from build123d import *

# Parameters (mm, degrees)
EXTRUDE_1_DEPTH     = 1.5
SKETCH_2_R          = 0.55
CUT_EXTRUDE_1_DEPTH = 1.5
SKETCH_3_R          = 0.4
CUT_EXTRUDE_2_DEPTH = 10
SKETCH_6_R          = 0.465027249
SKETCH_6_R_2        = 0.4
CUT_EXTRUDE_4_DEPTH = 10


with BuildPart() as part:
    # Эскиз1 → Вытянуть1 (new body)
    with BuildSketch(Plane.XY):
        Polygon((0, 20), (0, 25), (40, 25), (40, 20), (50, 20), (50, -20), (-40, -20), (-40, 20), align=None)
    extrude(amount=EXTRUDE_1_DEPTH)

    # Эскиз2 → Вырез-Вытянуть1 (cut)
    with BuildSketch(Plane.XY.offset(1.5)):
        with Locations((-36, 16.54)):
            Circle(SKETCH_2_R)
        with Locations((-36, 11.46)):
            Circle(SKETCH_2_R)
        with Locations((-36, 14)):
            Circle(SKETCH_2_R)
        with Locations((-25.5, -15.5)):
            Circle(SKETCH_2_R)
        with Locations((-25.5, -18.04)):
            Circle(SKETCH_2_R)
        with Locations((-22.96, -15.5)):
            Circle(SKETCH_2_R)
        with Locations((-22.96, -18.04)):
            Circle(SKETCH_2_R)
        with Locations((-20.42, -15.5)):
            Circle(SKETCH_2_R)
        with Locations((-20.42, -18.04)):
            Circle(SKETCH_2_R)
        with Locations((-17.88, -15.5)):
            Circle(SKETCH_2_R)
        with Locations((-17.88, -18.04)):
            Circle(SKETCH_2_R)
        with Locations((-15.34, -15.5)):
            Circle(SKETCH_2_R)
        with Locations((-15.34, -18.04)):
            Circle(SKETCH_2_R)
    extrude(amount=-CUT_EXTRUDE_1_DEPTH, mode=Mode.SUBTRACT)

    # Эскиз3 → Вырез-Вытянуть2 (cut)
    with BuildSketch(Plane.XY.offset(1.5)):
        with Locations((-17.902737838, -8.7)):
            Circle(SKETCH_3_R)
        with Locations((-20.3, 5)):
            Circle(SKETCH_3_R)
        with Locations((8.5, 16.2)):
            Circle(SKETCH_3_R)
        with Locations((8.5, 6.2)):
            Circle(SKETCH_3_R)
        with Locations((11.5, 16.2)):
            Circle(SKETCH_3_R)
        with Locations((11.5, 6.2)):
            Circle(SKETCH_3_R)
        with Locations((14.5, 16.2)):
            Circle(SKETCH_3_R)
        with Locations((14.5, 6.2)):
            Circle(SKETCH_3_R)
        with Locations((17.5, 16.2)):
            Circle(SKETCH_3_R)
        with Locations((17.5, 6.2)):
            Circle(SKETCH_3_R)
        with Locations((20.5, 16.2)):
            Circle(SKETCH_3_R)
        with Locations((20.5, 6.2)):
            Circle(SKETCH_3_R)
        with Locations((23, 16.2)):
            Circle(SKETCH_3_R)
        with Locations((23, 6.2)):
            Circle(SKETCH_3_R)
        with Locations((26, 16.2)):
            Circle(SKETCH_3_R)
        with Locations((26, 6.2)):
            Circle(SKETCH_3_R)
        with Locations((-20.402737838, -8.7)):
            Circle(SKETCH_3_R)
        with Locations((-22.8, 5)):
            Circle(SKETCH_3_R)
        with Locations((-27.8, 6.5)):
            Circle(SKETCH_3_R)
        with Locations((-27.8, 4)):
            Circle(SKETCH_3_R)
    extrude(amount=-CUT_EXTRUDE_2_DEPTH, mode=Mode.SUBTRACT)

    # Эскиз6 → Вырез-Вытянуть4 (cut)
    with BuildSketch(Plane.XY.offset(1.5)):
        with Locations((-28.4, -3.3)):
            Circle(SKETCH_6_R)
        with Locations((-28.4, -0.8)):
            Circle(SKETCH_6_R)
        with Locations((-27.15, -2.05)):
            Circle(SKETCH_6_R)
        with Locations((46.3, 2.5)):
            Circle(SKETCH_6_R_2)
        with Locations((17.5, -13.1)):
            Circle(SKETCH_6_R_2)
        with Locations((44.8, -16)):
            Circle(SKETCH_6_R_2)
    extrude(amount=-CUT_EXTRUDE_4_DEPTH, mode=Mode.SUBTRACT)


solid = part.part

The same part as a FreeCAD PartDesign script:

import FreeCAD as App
import Part
import Sketcher

V = App.Vector

doc = App.newDocument("Part")
body = doc.addObject("PartDesign::Body", "Body")

# Sketch on XY plane
sketch1 = body.newObject("Sketcher::SketchObject", "Sketch")
sketch1.AttachmentSupport = (doc.getObject("XY_Plane"), [""])
sketch1.MapMode = "FlatFace"
sketch1.addGeometry(Part.LineSegment(V(0, 25, 0), V(0, 20, 0)), False)
sketch1.addGeometry(Part.LineSegment(V(0, 20, 0), V(-40, 20, 0)), False)
sketch1.addGeometry(Part.LineSegment(V(-40, 20, 0), V(-40, -20, 0)), False)
sketch1.addGeometry(Part.LineSegment(V(-40, -20, 0), V(50, -20, 0)), False)
sketch1.addGeometry(Part.LineSegment(V(50, -20, 0), V(50, 20, 0)), False)
sketch1.addGeometry(Part.LineSegment(V(50, 20, 0), V(40, 20, 0)), False)
sketch1.addGeometry(Part.LineSegment(V(40, 20, 0), V(40, 25, 0)), False)
sketch1.addGeometry(Part.LineSegment(V(40, 25, 0), V(0, 25, 0)), False)
sketch1.addConstraint(Sketcher.Constraint("Coincident", 0, 2, 1, 1))
sketch1.addConstraint(Sketcher.Constraint("Coincident", 1, 2, 2, 1))
sketch1.addConstraint(Sketcher.Constraint("Coincident", 2, 2, 3, 1))
sketch1.addConstraint(Sketcher.Constraint("Coincident", 3, 2, 4, 1))
sketch1.addConstraint(Sketcher.Constraint("Coincident", 4, 2, 5, 1))
sketch1.addConstraint(Sketcher.Constraint("Coincident", 5, 2, 6, 1))
sketch1.addConstraint(Sketcher.Constraint("Coincident", 6, 2, 7, 1))
sketch1.addConstraint(Sketcher.Constraint("Coincident", 7, 2, 0, 1))
sketch1.addConstraint(Sketcher.Constraint("Vertical", 0))
sketch1.addConstraint(Sketcher.Constraint("Horizontal", 1))
sketch1.addConstraint(Sketcher.Constraint("Vertical", 2))
sketch1.addConstraint(Sketcher.Constraint("Horizontal", 3))
sketch1.addConstraint(Sketcher.Constraint("Vertical", 4))
sketch1.addConstraint(Sketcher.Constraint("Horizontal", 5))
sketch1.addConstraint(Sketcher.Constraint("Vertical", 6))
sketch1.addConstraint(Sketcher.Constraint("Horizontal", 7))
sketch1.addConstraint(Sketcher.Constraint("Symmetric", 2, 2, 5, 2, -1, 1))
sketch1.addConstraint(Sketcher.Constraint("PointOnObject", 0, 2, -2))
sketch1.addConstraint(Sketcher.Constraint("Horizontal", 1, 2, 4, 2))
sketch1.addConstraint(Sketcher.Constraint("Equal", 7, 2))
sketch1.addConstraint(Sketcher.Constraint("DistanceX", 1, 2, 1, 1, 40.0))
sketch1.addConstraint(Sketcher.Constraint("DistanceX", 3, 1, 3, 2, 90.0))
sketch1.addConstraint(Sketcher.Constraint("DistanceY", 0, 2, 0, 1, 5.0))
pad1 = body.newObject("PartDesign::Pad", "Pad")
pad1.Profile = sketch1
pad1.Length = 1.5

# Sketch on XY plane
sketch2 = body.newObject("Sketcher::SketchObject", "Sketch001")
sketch2.AttachmentSupport = (doc.getObject("XY_Plane"), [""])
sketch2.MapMode = "FlatFace"
sketch2.AttachmentOffset = App.Placement(V(0, 0, 1.5), App.Rotation())
sketch2.addGeometry(Part.Circle(V(-36, 16.5, 0), V(0, 0, 1), 0.6), False)
sketch2.addGeometry(Part.Circle(V(-36, 11.5, 0), V(0, 0, 1), 0.6), False)
sketch2.addGeometry(Part.Circle(V(-36, 14, 0), V(0, 0, 1), 0.6), False)
sketch2.addGeometry(Part.Circle(V(-25.5, -15.5, 0), V(0, 0, 1), 0.6), False)
sketch2.addGeometry(Part.Circle(V(-25.5, -18, 0), V(0, 0, 1), 0.6), False)
sketch2.addGeometry(Part.Circle(V(-23, -15.5, 0), V(0, 0, 1), 0.6), False)
sketch2.addGeometry(Part.Circle(V(-23, -18, 0), V(0, 0, 1), 0.6), False)
sketch2.addGeometry(Part.Circle(V(-20.4, -15.5, 0), V(0, 0, 1), 0.6), False)
sketch2.addGeometry(Part.Circle(V(-20.4, -18, 0), V(0, 0, 1), 0.6), False)
sketch2.addGeometry(Part.Circle(V(-17.9, -15.5, 0), V(0, 0, 1), 0.6), False)
sketch2.addGeometry(Part.Circle(V(-17.9, -18, 0), V(0, 0, 1), 0.6), False)
sketch2.addGeometry(Part.Circle(V(-15.3, -15.5, 0), V(0, 0, 1), 0.6), False)
sketch2.addGeometry(Part.Circle(V(-15.3, -18, 0), V(0, 0, 1), 0.6), False)
sketch2.addConstraint(Sketcher.Constraint("Equal", 0, 1))
sketch2.addConstraint(Sketcher.Constraint("Equal", 1, 2))
sketch2.addConstraint(Sketcher.Constraint("Equal", 2, 3))
sketch2.addConstraint(Sketcher.Constraint("Equal", 3, 4))
sketch2.addConstraint(Sketcher.Constraint("Equal", 4, 5))
sketch2.addConstraint(Sketcher.Constraint("Equal", 5, 6))
sketch2.addConstraint(Sketcher.Constraint("Equal", 6, 7))
sketch2.addConstraint(Sketcher.Constraint("Equal", 7, 8))
sketch2.addConstraint(Sketcher.Constraint("Equal", 8, 9))
sketch2.addConstraint(Sketcher.Constraint("Equal", 9, 10))
sketch2.addConstraint(Sketcher.Constraint("Equal", 10, 11))
sketch2.addConstraint(Sketcher.Constraint("Equal", 11, 12))
sketch2.addConstraint(Sketcher.Constraint("Horizontal", 3, 3, 5, 3))
sketch2.addConstraint(Sketcher.Constraint("Horizontal", 4, 3, 6, 3))
sketch2.addConstraint(Sketcher.Constraint("Horizontal", 5, 3, 7, 3))
sketch2.addConstraint(Sketcher.Constraint("Horizontal", 6, 3, 8, 3))
sketch2.addConstraint(Sketcher.Constraint("Horizontal", 7, 3, 9, 3))
sketch2.addConstraint(Sketcher.Constraint("Horizontal", 8, 3, 10, 3))
sketch2.addConstraint(Sketcher.Constraint("Horizontal", 9, 3, 11, 3))
sketch2.addConstraint(Sketcher.Constraint("Horizontal", 10, 3, 12, 3))
sketch2.addConstraint(Sketcher.Constraint("Vertical", 0, 3, 1, 3))
sketch2.addConstraint(Sketcher.Constraint("Vertical", 1, 3, 2, 3))
sketch2.addConstraint(Sketcher.Constraint("Vertical", 3, 3, 4, 3))
sketch2.addConstraint(Sketcher.Constraint("Vertical", 5, 3, 6, 3))
sketch2.addConstraint(Sketcher.Constraint("Vertical", 7, 3, 8, 3))
sketch2.addConstraint(Sketcher.Constraint("Vertical", 9, 3, 10, 3))
sketch2.addConstraint(Sketcher.Constraint("Vertical", 11, 3, 12, 3))
sketch2.addConstraint(Sketcher.Constraint("Diameter", 0, 1.1))
sketch2.addConstraint(Sketcher.Constraint("DistanceX", 0, 3, -1, 1, 36.0))
sketch2.addConstraint(Sketcher.Constraint("DistanceY", -1, 1, 2, 3, 14.0))
sketch2.addConstraint(Sketcher.Constraint("DistanceX", 3, 3, -1, 1, 25.5))
sketch2.addConstraint(Sketcher.Constraint("DistanceY", 3, 3, -1, 1, 15.5))
sketch2.addConstraint(Sketcher.Constraint("DistanceY", 4, 3, 1, 3, 29.5))
sketch2.addConstraint(Sketcher.Constraint("DistanceY", -1, 1, 0, 3, 16.54))
sketch2.addConstraint(Sketcher.Constraint("DistanceY", -1, 1, 1, 3, 11.46))
sketch2.addConstraint(Sketcher.Constraint("DistanceX", 5, 3, -1, 1, 22.96))
sketch2.addConstraint(Sketcher.Constraint("DistanceX", 7, 3, -1, 1, 20.42))
sketch2.addConstraint(Sketcher.Constraint("DistanceX", 9, 3, -1, 1, 17.88))
sketch2.addConstraint(Sketcher.Constraint("DistanceX", 11, 3, -1, 1, 15.34))
pocket1 = body.newObject("PartDesign::Pocket", "Pocket")
pocket1.Profile = sketch2
pocket1.Length = 1.5

# Sketch on XY plane
sketch3 = body.newObject("Sketcher::SketchObject", "Sketch002")
sketch3.AttachmentSupport = (doc.getObject("XY_Plane"), [""])
sketch3.MapMode = "FlatFace"
sketch3.AttachmentOffset = App.Placement(V(0, 0, 1.5), App.Rotation())
sketch3.addGeometry(Part.Circle(V(-17.9, -8.7, 0), V(0, 0, 1), 0.4), False)
sketch3.addGeometry(Part.Circle(V(-20.3, 5, 0), V(0, 0, 1), 0.4), False)
sketch3.addGeometry(Part.Circle(V(8.5, 16.2, 0), V(0, 0, 1), 0.4), False)
sketch3.addGeometry(Part.Circle(V(8.5, 6.2, 0), V(0, 0, 1), 0.4), False)
sketch3.addGeometry(Part.Circle(V(11.5, 16.2, 0), V(0, 0, 1), 0.4), False)
sketch3.addGeometry(Part.Circle(V(11.5, 6.2, 0), V(0, 0, 1), 0.4), False)
sketch3.addGeometry(Part.Circle(V(14.5, 16.2, 0), V(0, 0, 1), 0.4), False)
sketch3.addGeometry(Part.Circle(V(14.5, 6.2, 0), V(0, 0, 1), 0.4), False)
sketch3.addGeometry(Part.Circle(V(17.5, 16.2, 0), V(0, 0, 1), 0.4), False)
sketch3.addGeometry(Part.Circle(V(17.5, 6.2, 0), V(0, 0, 1), 0.4), False)
sketch3.addGeometry(Part.Circle(V(20.5, 16.2, 0), V(0, 0, 1), 0.4), False)
sketch3.addGeometry(Part.Circle(V(20.5, 6.2, 0), V(0, 0, 1), 0.4), False)
sketch3.addGeometry(Part.Circle(V(23, 16.2, 0), V(0, 0, 1), 0.4), False)
sketch3.addGeometry(Part.Circle(V(23, 6.2, 0), V(0, 0, 1), 0.4), False)
sketch3.addGeometry(Part.Circle(V(26, 16.2, 0), V(0, 0, 1), 0.4), False)
sketch3.addGeometry(Part.Circle(V(26, 6.2, 0), V(0, 0, 1), 0.4), False)
sketch3.addGeometry(Part.Circle(V(-20.4, -8.7, 0), V(0, 0, 1), 0.4), False)
sketch3.addGeometry(Part.Circle(V(-22.8, 5, 0), V(0, 0, 1), 0.4), False)
sketch3.addGeometry(Part.Circle(V(-27.8, 6.5, 0), V(0, 0, 1), 0.4), False)
sketch3.addGeometry(Part.Circle(V(-27.8, 4, 0), V(0, 0, 1), 0.4), False)
sketch3.addConstraint(Sketcher.Constraint("Equal", 0, 1))
sketch3.addConstraint(Sketcher.Constraint("Equal", 1, 2))
sketch3.addConstraint(Sketcher.Constraint("Equal", 2, 3))
sketch3.addConstraint(Sketcher.Constraint("Equal", 3, 4))
sketch3.addConstraint(Sketcher.Constraint("Equal", 4, 5))
sketch3.addConstraint(Sketcher.Constraint("Equal", 5, 6))
sketch3.addConstraint(Sketcher.Constraint("Equal", 6, 7))
sketch3.addConstraint(Sketcher.Constraint("Equal", 7, 8))
sketch3.addConstraint(Sketcher.Constraint("Equal", 8, 9))
sketch3.addConstraint(Sketcher.Constraint("Equal", 9, 10))
sketch3.addConstraint(Sketcher.Constraint("Equal", 10, 11))
sketch3.addConstraint(Sketcher.Constraint("Equal", 11, 12))
sketch3.addConstraint(Sketcher.Constraint("Equal", 12, 13))
sketch3.addConstraint(Sketcher.Constraint("Equal", 13, 14))
sketch3.addConstraint(Sketcher.Constraint("Equal", 14, 15))
sketch3.addConstraint(Sketcher.Constraint("Equal", 15, 16))
sketch3.addConstraint(Sketcher.Constraint("Equal", 16, 17))
sketch3.addConstraint(Sketcher.Constraint("Equal", 17, 18))
sketch3.addConstraint(Sketcher.Constraint("Equal", 18, 19))
sketch3.addConstraint(Sketcher.Constraint("Horizontal", 2, 3, 4, 3))
sketch3.addConstraint(Sketcher.Constraint("Horizontal", 3, 3, 5, 3))
sketch3.addConstraint(Sketcher.Constraint("Horizontal", 4, 3, 6, 3))
sketch3.addConstraint(Sketcher.Constraint("Horizontal", 5, 3, 7, 3))
sketch3.addConstraint(Sketcher.Constraint("Horizontal", 6, 3, 8, 3))
sketch3.addConstraint(Sketcher.Constraint("Horizontal", 7, 3, 9, 3))
sketch3.addConstraint(Sketcher.Constraint("Horizontal", 8, 3, 10, 3))
sketch3.addConstraint(Sketcher.Constraint("Horizontal", 9, 3, 11, 3))
sketch3.addConstraint(Sketcher.Constraint("Horizontal", 10, 3, 12, 3))
sketch3.addConstraint(Sketcher.Constraint("Horizontal", 11, 3, 13, 3))
sketch3.addConstraint(Sketcher.Constraint("Horizontal", 12, 3, 14, 3))
sketch3.addConstraint(Sketcher.Constraint("Horizontal", 13, 3, 15, 3))
sketch3.addConstraint(Sketcher.Constraint("Horizontal", 0, 3, 16, 3))
sketch3.addConstraint(Sketcher.Constraint("Horizontal", 1, 3, 17, 3))
sketch3.addConstraint(Sketcher.Constraint("Vertical", 2, 3, 3, 3))
sketch3.addConstraint(Sketcher.Constraint("Vertical", 4, 3, 5, 3))
sketch3.addConstraint(Sketcher.Constraint("Vertical", 6, 3, 7, 3))
sketch3.addConstraint(Sketcher.Constraint("Vertical", 8, 3, 9, 3))
sketch3.addConstraint(Sketcher.Constraint("Vertical", 10, 3, 11, 3))
sketch3.addConstraint(Sketcher.Constraint("Vertical", 12, 3, 13, 3))
sketch3.addConstraint(Sketcher.Constraint("Vertical", 14, 3, 15, 3))
sketch3.addConstraint(Sketcher.Constraint("Vertical", 18, 3, 19, 3))
sketch3.addConstraint(Sketcher.Constraint("Diameter", 0, 0.8))
sketch3.addConstraint(Sketcher.Constraint("DistanceY", -1, 1, 1, 3, 5.0))
sketch3.addConstraint(Sketcher.Constraint("DistanceX", -1, 1, 12, 3, 23.0))
sketch3.addConstraint(Sketcher.Constraint("DistanceX", -1, 1, 14, 3, 26.0))
sketch3.addConstraint(Sketcher.Constraint("DistanceY", -1, 1, 19, 3, 4.0))
sketch3.addConstraint(Sketcher.Constraint("DistanceY", 3, 3, 2, 3, 10.0))
sketch3.addConstraint(Sketcher.Constraint("DistanceX", 2, 3, 4, 3, 3.0))
sketch3.addConstraint(Sketcher.Constraint("DistanceX", 4, 3, 6, 3, 3.0))
sketch3.addConstraint(Sketcher.Constraint("DistanceX", 6, 3, 8, 3, 3.0))
sketch3.addConstraint(Sketcher.Constraint("DistanceX", 8, 3, 10, 3, 3.0))
sketch3.addConstraint(Sketcher.Constraint("DistanceX", 18, 3, 17, 3, 5.0))
sketch3.addConstraint(Sketcher.Constraint("DistanceY", 0, 3, -1, 1, 8.7))
sketch3.addConstraint(Sketcher.Constraint("DistanceX", 1, 3, -1, 1, 20.3))
sketch3.addConstraint(Sketcher.Constraint("DistanceX", -1, 1, 2, 3, 8.5))
sketch3.addConstraint(Sketcher.Constraint("DistanceY", -1, 1, 2, 3, 16.2))
sketch3.addConstraint(Sketcher.Constraint("DistanceX", 17, 3, -1, 1, 22.8))
sketch3.addConstraint(Sketcher.Constraint("DistanceY", -1, 1, 18, 3, 6.5))
sketch3.addConstraint(Sketcher.Constraint("DistanceX", 16, 3, 0, 3, 2.5))
sketch3.addConstraint(Sketcher.Constraint("DistanceX", 0, 3, -1, 1, 17.902738))
pocket2 = body.newObject("PartDesign::Pocket", "Pocket001")
pocket2.Profile = sketch3
pocket2.Length = 10

# Sketch on XY plane
sketch4 = body.newObject("Sketcher::SketchObject", "Sketch003")
sketch4.AttachmentSupport = (doc.getObject("XY_Plane"), [""])
sketch4.MapMode = "FlatFace"
sketch4.AttachmentOffset = App.Placement(V(0, 0, 1.5), App.Rotation())
sketch4.addGeometry(Part.Circle(V(-28.4, -3.3, 0), V(0, 0, 1), 0.47), False)
sketch4.addGeometry(Part.Circle(V(-28.4, -0.8, 0), V(0, 0, 1), 0.47), False)
sketch4.addGeometry(Part.Circle(V(-27.15, -2.05, 0), V(0, 0, 1), 0.47), False)
sketch4.addGeometry(Part.Circle(V(46.3, 2.5, 0), V(0, 0, 1), 0.4), False)
sketch4.addGeometry(Part.Circle(V(17.5, -13.1, 0), V(0, 0, 1), 0.4), False)
sketch4.addGeometry(Part.Circle(V(44.8, -16, 0), V(0, 0, 1), 0.4), False)
sketch4.addConstraint(Sketcher.Constraint("Equal", 0, 1))
sketch4.addConstraint(Sketcher.Constraint("Equal", 1, 2))
sketch4.addConstraint(Sketcher.Constraint("Equal", 3, 4))
sketch4.addConstraint(Sketcher.Constraint("Equal", 4, 5))
sketch4.addConstraint(Sketcher.Constraint("Vertical", 0, 3, 1, 3))
sketch4.addConstraint(Sketcher.Constraint("Diameter", 3, 0.8))
sketch4.addConstraint(Sketcher.Constraint("DistanceY", 5, 3, -1, 1, 16.0))
sketch4.addConstraint(Sketcher.Constraint("DistanceX", 0, 3, -1, 1, 28.4))
sketch4.addConstraint(Sketcher.Constraint("DistanceY", 0, 3, -1, 1, 3.3))
sketch4.addConstraint(Sketcher.Constraint("DistanceY", 1, 3, -1, 1, 0.8))
sketch4.addConstraint(Sketcher.Constraint("DistanceX", -1, 1, 3, 3, 46.3))
sketch4.addConstraint(Sketcher.Constraint("DistanceY", -1, 1, 3, 3, 2.5))
sketch4.addConstraint(Sketcher.Constraint("DistanceX", -1, 1, 4, 3, 17.5))
sketch4.addConstraint(Sketcher.Constraint("DistanceY", 4, 3, -1, 1, 13.1))
sketch4.addConstraint(Sketcher.Constraint("DistanceX", -1, 1, 5, 3, 44.8))
sketch4.addConstraint(Sketcher.Constraint("DistanceX", 2, 3, -1, 1, 27.15))
sketch4.addConstraint(Sketcher.Constraint("DistanceY", 2, 3, -1, 1, 2.05))
sketch4.addConstraint(Sketcher.Constraint("Diameter", 0, 0.930054))
pocket3 = body.newObject("PartDesign::Pocket", "Pocket002")
pocket3.Profile = sketch4
pocket3.Length = 10

doc.recompute()
